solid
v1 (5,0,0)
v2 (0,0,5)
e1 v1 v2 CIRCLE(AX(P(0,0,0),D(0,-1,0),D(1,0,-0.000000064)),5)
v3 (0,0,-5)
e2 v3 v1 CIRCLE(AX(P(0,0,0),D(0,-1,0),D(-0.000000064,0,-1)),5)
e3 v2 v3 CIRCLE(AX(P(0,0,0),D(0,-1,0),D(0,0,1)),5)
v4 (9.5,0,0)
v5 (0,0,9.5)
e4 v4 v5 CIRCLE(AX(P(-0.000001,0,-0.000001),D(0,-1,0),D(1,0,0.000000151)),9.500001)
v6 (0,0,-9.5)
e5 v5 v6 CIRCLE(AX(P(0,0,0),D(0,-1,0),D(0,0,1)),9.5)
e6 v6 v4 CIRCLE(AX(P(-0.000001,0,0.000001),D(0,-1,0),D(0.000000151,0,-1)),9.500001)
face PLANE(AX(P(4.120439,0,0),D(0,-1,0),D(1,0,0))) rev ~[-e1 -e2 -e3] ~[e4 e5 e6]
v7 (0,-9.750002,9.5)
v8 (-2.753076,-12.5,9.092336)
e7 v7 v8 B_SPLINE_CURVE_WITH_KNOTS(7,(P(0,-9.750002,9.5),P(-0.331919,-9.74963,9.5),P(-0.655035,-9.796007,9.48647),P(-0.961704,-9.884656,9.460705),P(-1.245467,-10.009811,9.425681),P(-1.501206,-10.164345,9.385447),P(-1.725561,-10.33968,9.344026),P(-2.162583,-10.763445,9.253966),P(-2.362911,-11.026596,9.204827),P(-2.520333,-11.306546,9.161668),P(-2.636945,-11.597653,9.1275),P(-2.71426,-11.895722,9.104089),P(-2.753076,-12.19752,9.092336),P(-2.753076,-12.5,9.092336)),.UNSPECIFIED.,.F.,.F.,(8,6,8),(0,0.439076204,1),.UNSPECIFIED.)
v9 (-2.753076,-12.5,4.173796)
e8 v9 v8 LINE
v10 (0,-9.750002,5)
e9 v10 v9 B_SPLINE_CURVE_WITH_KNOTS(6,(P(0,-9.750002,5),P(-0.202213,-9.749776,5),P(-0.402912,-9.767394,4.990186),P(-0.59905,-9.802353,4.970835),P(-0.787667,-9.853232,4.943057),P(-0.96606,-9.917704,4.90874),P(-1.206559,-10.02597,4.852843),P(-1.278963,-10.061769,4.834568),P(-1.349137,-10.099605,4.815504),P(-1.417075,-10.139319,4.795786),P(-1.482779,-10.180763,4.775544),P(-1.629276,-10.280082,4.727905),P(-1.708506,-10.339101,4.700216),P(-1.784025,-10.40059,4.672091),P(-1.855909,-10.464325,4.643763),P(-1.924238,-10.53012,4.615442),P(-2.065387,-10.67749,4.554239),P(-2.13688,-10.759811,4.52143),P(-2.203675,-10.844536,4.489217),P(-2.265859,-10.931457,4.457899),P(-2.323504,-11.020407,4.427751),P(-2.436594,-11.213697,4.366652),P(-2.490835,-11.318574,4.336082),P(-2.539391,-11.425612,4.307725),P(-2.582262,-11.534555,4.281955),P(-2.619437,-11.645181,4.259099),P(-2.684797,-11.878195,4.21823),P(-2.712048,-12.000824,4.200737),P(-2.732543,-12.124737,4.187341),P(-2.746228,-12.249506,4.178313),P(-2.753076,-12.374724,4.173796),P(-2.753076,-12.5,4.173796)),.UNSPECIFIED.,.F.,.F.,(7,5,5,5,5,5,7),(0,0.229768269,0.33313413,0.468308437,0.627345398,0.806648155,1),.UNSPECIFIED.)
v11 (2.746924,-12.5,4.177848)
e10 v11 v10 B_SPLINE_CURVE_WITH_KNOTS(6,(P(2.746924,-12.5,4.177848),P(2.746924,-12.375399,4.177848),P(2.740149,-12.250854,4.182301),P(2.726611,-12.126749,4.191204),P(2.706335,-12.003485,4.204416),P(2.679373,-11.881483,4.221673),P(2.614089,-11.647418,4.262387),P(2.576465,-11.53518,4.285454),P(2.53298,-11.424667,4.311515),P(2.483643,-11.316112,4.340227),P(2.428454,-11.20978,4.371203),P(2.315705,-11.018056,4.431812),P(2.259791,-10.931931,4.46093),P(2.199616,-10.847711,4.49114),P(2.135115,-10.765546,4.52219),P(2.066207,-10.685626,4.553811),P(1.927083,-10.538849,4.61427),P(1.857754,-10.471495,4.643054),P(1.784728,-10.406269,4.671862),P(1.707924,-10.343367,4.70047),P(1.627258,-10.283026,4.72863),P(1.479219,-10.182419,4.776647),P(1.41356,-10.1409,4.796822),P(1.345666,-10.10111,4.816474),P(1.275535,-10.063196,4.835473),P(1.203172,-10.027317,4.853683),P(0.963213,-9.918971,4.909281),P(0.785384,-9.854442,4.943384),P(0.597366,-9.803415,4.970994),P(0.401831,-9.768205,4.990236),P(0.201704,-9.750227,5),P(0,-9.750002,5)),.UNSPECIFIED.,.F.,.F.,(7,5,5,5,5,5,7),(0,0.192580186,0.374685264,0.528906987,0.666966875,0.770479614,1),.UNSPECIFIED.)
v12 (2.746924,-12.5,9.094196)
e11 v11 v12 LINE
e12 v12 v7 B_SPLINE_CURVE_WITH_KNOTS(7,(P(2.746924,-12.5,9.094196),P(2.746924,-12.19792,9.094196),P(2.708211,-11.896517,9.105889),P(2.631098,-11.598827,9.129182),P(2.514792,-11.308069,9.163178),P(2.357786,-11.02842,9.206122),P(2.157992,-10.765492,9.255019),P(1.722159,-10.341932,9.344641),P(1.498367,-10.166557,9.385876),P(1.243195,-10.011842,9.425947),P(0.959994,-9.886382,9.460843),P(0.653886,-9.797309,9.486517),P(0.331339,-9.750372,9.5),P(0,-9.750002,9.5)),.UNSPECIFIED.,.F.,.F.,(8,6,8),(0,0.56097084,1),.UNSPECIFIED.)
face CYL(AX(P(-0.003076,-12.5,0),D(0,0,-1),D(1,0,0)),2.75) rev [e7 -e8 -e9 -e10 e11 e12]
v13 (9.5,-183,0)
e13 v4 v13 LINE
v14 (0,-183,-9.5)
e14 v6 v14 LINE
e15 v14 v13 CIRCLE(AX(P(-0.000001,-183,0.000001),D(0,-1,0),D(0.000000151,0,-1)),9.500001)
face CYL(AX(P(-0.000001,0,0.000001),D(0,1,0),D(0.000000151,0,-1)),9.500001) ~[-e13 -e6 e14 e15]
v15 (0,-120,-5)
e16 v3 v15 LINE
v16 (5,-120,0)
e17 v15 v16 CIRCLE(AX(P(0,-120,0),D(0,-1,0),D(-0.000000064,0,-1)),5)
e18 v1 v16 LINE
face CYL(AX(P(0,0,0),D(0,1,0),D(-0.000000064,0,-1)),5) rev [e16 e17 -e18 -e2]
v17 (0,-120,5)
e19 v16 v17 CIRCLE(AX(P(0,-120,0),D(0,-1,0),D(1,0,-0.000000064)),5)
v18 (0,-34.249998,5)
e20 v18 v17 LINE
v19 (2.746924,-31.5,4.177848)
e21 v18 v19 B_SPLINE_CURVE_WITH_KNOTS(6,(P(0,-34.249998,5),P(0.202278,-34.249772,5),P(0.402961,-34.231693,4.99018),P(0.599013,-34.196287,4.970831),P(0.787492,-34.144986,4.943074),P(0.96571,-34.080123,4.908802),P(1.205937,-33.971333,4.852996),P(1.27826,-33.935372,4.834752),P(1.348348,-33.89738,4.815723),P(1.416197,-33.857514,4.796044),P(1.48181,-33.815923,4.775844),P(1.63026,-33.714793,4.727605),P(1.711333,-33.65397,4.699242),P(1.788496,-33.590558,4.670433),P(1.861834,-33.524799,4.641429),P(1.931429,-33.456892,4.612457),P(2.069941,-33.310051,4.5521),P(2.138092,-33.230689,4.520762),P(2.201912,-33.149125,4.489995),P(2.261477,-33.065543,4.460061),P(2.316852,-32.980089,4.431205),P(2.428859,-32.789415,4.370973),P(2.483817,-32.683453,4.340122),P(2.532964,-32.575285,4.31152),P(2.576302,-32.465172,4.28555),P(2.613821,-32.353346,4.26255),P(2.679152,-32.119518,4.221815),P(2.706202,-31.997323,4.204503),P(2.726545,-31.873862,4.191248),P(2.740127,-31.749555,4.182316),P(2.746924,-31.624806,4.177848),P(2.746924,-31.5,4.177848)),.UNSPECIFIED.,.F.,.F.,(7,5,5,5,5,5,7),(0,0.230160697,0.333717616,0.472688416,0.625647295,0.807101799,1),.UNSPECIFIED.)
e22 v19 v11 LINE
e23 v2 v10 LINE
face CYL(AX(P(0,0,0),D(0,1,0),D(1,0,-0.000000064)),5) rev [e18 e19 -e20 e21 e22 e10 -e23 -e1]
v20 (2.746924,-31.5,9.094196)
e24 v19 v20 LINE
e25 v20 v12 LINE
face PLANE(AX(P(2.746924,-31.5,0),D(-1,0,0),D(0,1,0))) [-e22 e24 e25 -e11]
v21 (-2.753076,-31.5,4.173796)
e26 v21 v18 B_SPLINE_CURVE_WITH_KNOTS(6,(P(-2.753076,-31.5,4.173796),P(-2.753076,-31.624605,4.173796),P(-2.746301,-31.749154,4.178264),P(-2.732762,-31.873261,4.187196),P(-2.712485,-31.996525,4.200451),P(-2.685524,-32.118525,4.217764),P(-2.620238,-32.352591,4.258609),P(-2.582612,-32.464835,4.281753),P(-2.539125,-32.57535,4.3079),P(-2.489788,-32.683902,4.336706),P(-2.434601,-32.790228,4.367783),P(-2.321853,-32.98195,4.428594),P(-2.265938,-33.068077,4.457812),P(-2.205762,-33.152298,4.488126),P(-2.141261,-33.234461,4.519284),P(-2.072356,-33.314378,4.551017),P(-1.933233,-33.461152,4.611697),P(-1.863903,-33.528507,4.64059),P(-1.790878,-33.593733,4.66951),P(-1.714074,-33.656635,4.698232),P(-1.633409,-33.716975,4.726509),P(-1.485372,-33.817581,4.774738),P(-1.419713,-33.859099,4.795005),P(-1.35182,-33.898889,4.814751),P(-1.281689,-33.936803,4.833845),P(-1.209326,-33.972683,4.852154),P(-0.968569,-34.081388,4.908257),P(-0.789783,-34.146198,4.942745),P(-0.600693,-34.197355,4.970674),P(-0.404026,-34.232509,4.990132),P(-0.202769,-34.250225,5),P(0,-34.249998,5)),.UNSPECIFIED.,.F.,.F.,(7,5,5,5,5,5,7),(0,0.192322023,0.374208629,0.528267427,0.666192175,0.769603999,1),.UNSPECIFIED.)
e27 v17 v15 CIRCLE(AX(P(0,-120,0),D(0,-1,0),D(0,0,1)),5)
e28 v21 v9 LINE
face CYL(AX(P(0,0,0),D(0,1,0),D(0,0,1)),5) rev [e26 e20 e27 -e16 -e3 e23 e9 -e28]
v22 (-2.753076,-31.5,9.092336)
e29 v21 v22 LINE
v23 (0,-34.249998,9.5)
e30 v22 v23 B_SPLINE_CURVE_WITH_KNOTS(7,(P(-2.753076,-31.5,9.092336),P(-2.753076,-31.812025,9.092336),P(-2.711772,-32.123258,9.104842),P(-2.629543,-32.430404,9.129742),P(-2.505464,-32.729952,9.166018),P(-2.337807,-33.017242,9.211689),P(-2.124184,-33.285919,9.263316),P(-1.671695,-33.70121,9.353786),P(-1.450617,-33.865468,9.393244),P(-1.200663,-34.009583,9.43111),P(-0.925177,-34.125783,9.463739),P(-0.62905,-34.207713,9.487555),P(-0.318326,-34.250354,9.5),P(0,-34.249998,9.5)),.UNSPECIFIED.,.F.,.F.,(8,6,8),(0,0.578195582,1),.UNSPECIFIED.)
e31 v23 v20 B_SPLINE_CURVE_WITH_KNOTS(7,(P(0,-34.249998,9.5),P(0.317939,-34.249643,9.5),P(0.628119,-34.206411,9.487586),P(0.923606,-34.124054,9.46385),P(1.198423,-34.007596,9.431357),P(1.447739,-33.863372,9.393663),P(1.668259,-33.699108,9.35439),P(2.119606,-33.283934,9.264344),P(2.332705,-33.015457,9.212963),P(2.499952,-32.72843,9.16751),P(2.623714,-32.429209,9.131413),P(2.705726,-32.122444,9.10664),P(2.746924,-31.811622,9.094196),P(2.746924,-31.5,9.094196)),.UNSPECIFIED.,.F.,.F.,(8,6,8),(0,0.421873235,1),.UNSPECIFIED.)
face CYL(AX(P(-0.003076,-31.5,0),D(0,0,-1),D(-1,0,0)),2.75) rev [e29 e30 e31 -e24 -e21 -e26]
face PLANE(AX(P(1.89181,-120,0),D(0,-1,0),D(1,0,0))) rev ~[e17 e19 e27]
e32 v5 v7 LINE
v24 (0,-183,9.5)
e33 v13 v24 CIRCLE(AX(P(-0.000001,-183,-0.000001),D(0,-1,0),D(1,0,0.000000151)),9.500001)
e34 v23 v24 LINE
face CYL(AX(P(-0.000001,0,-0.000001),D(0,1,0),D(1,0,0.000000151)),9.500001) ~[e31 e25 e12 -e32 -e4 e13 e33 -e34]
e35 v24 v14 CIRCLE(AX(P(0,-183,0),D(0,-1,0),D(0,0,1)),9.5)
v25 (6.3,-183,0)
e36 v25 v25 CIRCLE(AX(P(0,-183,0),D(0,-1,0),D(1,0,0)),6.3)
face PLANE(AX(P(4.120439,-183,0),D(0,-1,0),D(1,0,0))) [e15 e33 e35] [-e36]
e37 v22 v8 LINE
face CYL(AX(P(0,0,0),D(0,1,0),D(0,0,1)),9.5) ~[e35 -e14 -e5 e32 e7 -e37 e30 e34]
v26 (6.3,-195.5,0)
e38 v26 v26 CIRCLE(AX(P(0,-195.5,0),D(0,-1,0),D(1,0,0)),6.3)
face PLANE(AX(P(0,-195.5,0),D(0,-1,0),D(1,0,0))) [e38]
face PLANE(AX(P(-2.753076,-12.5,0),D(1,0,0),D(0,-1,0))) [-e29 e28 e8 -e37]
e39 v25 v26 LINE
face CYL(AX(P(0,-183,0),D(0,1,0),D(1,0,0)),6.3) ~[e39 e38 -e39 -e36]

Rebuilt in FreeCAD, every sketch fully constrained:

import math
import FreeCAD as App
import Part
import Sketcher
from FreeCAD import Vector
Q = App.Units.Quantity

doc = App.newDocument("Part")
body = doc.addObject("PartDesign::Body", "Body")

# Sketch on XZ plane
sketch1 = doc.addObject("Sketcher::SketchObject", "Sketch")
body.addObject(sketch1)
sketch1.AttachmentSupport = (doc.XZ_Plane, [""])
sketch1.MapMode = "FlatFace"
sketch1.addGeometry([
    Part.ArcOfCircle(Part.Circle(Vector(-0.000001, 0.000001, 0), Vector(0, 0, 1), 9.500001), math.radians(-89.999991), math.radians(-0.000009)),
    Part.ArcOfCircle(Part.Circle(Vector(-0.000001, -0.000001, 0), Vector(0, 0, 1), 9.500001), math.radians(0.000009), math.radians(89.999991)),
    Part.ArcOfCircle(Part.Circle(Vector(0, 0, 0), Vector(0, 0, 1), 9.5), math.radians(90), math.radians(270)),
], False)
sketch1.addConstraint([
    Sketcher.Constraint("Tangent", 0, 2, 1, 1),
    Sketcher.Constraint("Tangent", 1, 2, 2, 1),
    Sketcher.Constraint("Tangent", 2, 2, 0, 1),
    Sketcher.Constraint("Coincident", 0, 3, -1, 1),
    Sketcher.Constraint("PointOnObject", 0, 2, -1),
    Sketcher.Constraint("PointOnObject", 1, 2, -2),
    Sketcher.Constraint("PointOnObject", 2, 2, -2),
    Sketcher.Constraint("Radius", 0, Q("9.500001 mm")),
])
pad1 = doc.addObject("PartDesign::Pad", "Pad")
body.addObject(pad1)
pad1.Profile = sketch1
pad1.Length = 183

# Sketch on XZ plane
sketch2 = doc.addObject("Sketcher::SketchObject", "Sketch001")
body.addObject(sketch2)
sketch2.AttachmentSupport = (doc.XZ_Plane, [""])
sketch2.MapMode = "FlatFace"
sketch2.addGeometry([
    Part.ArcOfCircle(Part.Circle(Vector(0, 0, 0), Vector(0, 0, 1), 5), math.radians(-0.000004), math.radians(90.000004)),
    Part.ArcOfCircle(Part.Circle(Vector(0, 0, 0), Vector(0, 0, 1), 5), math.radians(90), math.radians(270)),
    Part.ArcOfCircle(Part.Circle(Vector(0, 0, 0), Vector(0, 0, 1), 5), math.radians(-90.000004), math.radians(0.000004)),
], False)
sketch2.addConstraint([
    Sketcher.Constraint("Tangent", 0, 2, 1, 1),
    Sketcher.Constraint("Tangent", 1, 2, 2, 1),
    Sketcher.Constraint("Tangent", 2, 2, 0, 1),
    Sketcher.Constraint("Coincident", 0, 3, -1, 1),
    Sketcher.Constraint("PointOnObject", 0, 2, -2),
    Sketcher.Constraint("PointOnObject", 1, 2, -2),
    Sketcher.Constraint("PointOnObject", 2, 2, -1),
    Sketcher.Constraint("Radius", 0, Q("5 mm")),
])
pocket1 = doc.addObject("PartDesign::Pocket", "Pocket")
body.addObject(pocket1)
pocket1.Profile = sketch2
pocket1.Length = 120
pocket1.Reversed = True

# Sketch on XY plane
sketch3 = doc.addObject("Sketcher::SketchObject", "Sketch002")
body.addObject(sketch3)
sketch3.AttachmentSupport = (doc.XY_Plane, [""])
sketch3.MapMode = "FlatFace"
sketch3.addGeometry([
    Part.LineSegment(Vector(2.746924, -31.5, 0), Vector(2.746924, -12.5, 0)),
    Part.ArcOfCircle(Part.Circle(Vector(-0.003076, -12.5, 0), Vector(0, 0, 1), 2.75), math.radians(0), math.radians(180)),
    Part.LineSegment(Vector(-2.753076, -12.5, 0), Vector(-2.753076, -31.5, 0)),
    Part.ArcOfCircle(Part.Circle(Vector(-0.003076, -31.5, 0), Vector(0, 0, 1), 2.75), math.radians(180), math.radians(360)),
], False)
sketch3.addConstraint([
    Sketcher.Constraint("Tangent", 0, 2, 1, 1),
    Sketcher.Constraint("Tangent", 1, 2, 2, 1),
    Sketcher.Constraint("Tangent", 2, 2, 3, 1),
    Sketcher.Constraint("Tangent", 3, 2, 0, 1),
    Sketcher.Constraint("Vertical", 0),
    Sketcher.Constraint("Vertical", 2),
    Sketcher.Constraint("DistanceY", 0, 1, 0, 2, Q("19 mm")),
    Sketcher.Constraint("Radius", 1, Q("2.75 mm")),
    Sketcher.Constraint("DistanceY", 1, 3, -1, 1, Q("12.5 mm")),
    Sketcher.Constraint("DistanceX", 1, 3, -1, 1, Q("0.003076 mm")),
])
pocket2 = doc.addObject("PartDesign::Pocket", "Pocket001")
body.addObject(pocket2)
pocket2.Profile = sketch3
pocket2.Length = 25
pocket2.Reversed = True

# Sketch on XZ plane
sketch4 = doc.addObject("Sketcher::SketchObject", "Sketch003")
body.addObject(sketch4)
sketch4.AttachmentSupport = (doc.XZ_Plane, [""])
sketch4.MapMode = "FlatFace"
sketch4.AttachmentOffset = App.Placement(Vector(0, 0, 183), App.Rotation())
sketch4.addGeometry(Part.Circle(Vector(0, 0, 0), Vector(0, 0, 1), 6.3), False)
sketch4.addConstraint([
    Sketcher.Constraint("Coincident", 0, 3, -1, 1),
    Sketcher.Constraint("Diameter", 0, Q("12.6 mm")),
])
pad2 = doc.addObject("PartDesign::Pad", "Pad001")
body.addObject(pad2)
pad2.Profile = sketch4
pad2.Length = 12.5

doc.recompute()
